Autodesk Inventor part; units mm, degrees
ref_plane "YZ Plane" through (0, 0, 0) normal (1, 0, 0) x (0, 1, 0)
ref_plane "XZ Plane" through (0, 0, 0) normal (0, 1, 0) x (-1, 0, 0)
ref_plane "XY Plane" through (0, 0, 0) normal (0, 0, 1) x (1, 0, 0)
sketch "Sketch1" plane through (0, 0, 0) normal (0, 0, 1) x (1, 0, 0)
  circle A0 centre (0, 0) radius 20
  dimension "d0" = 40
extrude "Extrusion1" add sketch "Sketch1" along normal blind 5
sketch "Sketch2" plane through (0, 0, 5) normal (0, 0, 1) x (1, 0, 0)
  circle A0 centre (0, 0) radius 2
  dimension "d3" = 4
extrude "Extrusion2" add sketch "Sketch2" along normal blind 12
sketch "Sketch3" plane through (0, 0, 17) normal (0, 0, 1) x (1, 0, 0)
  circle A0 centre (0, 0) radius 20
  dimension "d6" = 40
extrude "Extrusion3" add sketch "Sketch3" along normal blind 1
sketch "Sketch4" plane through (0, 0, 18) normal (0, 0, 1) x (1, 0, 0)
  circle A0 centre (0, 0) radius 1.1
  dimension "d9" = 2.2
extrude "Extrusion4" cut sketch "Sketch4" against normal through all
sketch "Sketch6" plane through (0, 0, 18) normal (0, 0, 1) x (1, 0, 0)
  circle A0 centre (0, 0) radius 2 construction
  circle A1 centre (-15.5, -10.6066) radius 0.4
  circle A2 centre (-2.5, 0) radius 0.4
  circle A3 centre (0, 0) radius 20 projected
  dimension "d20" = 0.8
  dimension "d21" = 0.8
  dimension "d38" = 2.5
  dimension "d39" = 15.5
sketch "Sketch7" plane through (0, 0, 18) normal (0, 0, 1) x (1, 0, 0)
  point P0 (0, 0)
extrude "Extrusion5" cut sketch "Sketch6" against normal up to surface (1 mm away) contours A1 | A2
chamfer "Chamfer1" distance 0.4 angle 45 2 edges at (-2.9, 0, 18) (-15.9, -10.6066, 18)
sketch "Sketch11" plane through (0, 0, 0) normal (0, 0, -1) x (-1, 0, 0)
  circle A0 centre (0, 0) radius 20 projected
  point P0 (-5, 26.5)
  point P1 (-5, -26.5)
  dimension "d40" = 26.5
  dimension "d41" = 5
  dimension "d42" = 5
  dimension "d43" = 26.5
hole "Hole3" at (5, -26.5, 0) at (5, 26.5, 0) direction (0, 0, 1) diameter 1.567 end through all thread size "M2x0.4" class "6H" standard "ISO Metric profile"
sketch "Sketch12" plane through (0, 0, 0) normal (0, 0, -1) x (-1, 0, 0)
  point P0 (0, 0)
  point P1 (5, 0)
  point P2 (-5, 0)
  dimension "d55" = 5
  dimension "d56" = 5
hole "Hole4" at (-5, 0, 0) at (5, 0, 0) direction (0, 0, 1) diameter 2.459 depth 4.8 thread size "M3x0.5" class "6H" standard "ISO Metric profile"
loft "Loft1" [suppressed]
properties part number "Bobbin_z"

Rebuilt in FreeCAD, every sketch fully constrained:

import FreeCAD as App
import Part
import Sketcher
Q = App.Units.Quantity


def edges_at(feature, points):
    """Names of the edges that pass closest to the given points."""
    edges = feature.Shape.Edges
    near = lambda p: min(range(len(edges)), key=lambda i: edges[i].distToShape(Part.Vertex(*p))[0])
    return sorted({f"Edge{near(p) + 1}" for p in points})

doc = App.newDocument("Part")
body = doc.addObject("PartDesign::Body", "Body")

sketch1 = body.newObject("Sketcher::SketchObject", "Sketch")
sketch1.AttachmentSupport = (doc.getObject("XY_Plane"), [""])
sketch1.MapMode = "FlatFace"
sketch1.addGeometry(Part.Circle(App.Vector(0, 0, 0), App.Vector(0, 0, 1), 20), False)
sketch1.addConstraint([
    Sketcher.Constraint("Coincident", 0, 3, -1, 1),
    Sketcher.Constraint("Diameter", 0, Q("40 mm")),
])
pad1 = body.newObject("PartDesign::Pad", "Pad")
pad1.Profile = sketch1
pad1.Length = 5

sketch2 = body.newObject("Sketcher::SketchObject", "Sketch001")
sketch2.AttachmentSupport = (doc.getObject("XY_Plane"), [""])
sketch2.MapMode = "FlatFace"
sketch2.AttachmentOffset = App.Placement(App.Vector(0, 0, 5), App.Rotation())
sketch2.addGeometry(Part.Circle(App.Vector(0, 0, 0), App.Vector(0, 0, 1), 2), False)
sketch2.addConstraint([
    Sketcher.Constraint("Coincident", 0, 3, -1, 1),
    Sketcher.Constraint("Diameter", 0, Q("4 mm")),
])
pad2 = body.newObject("PartDesign::Pad", "Pad001")
pad2.Profile = sketch2
pad2.Length = 12

sketch3 = body.newObject("Sketcher::SketchObject", "Sketch002")
sketch3.AttachmentSupport = (doc.getObject("XY_Plane"), [""])
sketch3.MapMode = "FlatFace"
sketch3.AttachmentOffset = App.Placement(App.Vector(0, 0, 17), App.Rotation())
sketch3.addGeometry(Part.Circle(App.Vector(0, 0, 0), App.Vector(0, 0, 1), 20), False)
sketch3.addConstraint([
    Sketcher.Constraint("Coincident", 0, 3, -1, 1),
    Sketcher.Constraint("Diameter", 0, Q("40 mm")),
])
pad3 = body.newObject("PartDesign::Pad", "Pad002")
pad3.Profile = sketch3
pad3.Length = 1

sketch4 = body.newObject("Sketcher::SketchObject", "Sketch003")
sketch4.AttachmentSupport = (doc.getObject("XY_Plane"), [""])
sketch4.MapMode = "FlatFace"
sketch4.AttachmentOffset = App.Placement(App.Vector(0, 0, 18), App.Rotation())
sketch4.addGeometry(Part.Circle(App.Vector(0, 0, 0), App.Vector(0, 0, 1), 1.1), False)
sketch4.addConstraint([
    Sketcher.Constraint("Coincident", 0, 3, -1, 1),
    Sketcher.Constraint("Diameter", 0, Q("2.2 mm")),
])
pocket1 = body.newObject("PartDesign::Pocket", "Pocket")
pocket1.Profile = sketch4
pocket1.Type = "ThroughAll"

sketch5 = body.newObject("Sketcher::SketchObject", "Sketch004")
sketch5.AttachmentSupport = (doc.getObject("XY_Plane"), [""])
sketch5.MapMode = "FlatFace"
sketch5.AttachmentOffset = App.Placement(App.Vector(0, 0, 18), App.Rotation())
sketch5.addGeometry([
    Part.Circle(App.Vector(-15.5, -10.61, 0), App.Vector(0, 0, 1), 0.4),
    Part.Circle(App.Vector(-2.5, 0, 0), App.Vector(0, 0, 1), 0.4),
], False)
sketch5.addConstraint([
    Sketcher.Constraint("Equal", 0, 1),
    Sketcher.Constraint("PointOnObject", 1, 3, -1),
    Sketcher.Constraint("Diameter", 0, Q("0.8 mm")),
    Sketcher.Constraint("DistanceX", 0, 3, -1, 1, Q("15.5 mm")),
    Sketcher.Constraint("DistanceX", 1, 3, -1, 1, Q("2.5 mm")),
    Sketcher.Constraint("DistanceY", 0, 3, -1, 1, Q("10.6066 mm")),
])
pocket2 = body.newObject("PartDesign::Pocket", "Pocket001")
pocket2.Profile = sketch5
pocket2.Length = 1
doc.recompute()

chamfer = body.newObject("PartDesign::Chamfer", "Chamfer")
chamfer.Base = (pocket2, edges_at(pocket2, [(-2.9, 0, 18), (-15.9, -10.607, 18)]))
chamfer.Size = 0.4

sketch6 = body.newObject("Sketcher::SketchObject", "Sketch005")
sketch6.AttachmentSupport = (doc.getObject("XY_Plane"), [""])
sketch6.MapMode = "FlatFace"
sketch6.addGeometry([
    Part.Circle(App.Vector(5, -26.5, 0), App.Vector(0, 0, 1), 0.8),
    Part.Circle(App.Vector(5, 26.5, 0), App.Vector(0, 0, 1), 0.8),
], False)
sketch6.addConstraint([
    Sketcher.Constraint("Equal", 0, 1),
    Sketcher.Constraint("Symmetric", 0, 3, 1, 3, -1),
    Sketcher.Constraint("Diameter", 0, Q("1.567 mm")),
    Sketcher.Constraint("DistanceX", -1, 1, 0, 3, Q("5 mm")),
    Sketcher.Constraint("DistanceY", 0, 3, 1, 3, Q("53 mm")),
])
doc.recompute()
hole = body.newObject("PartDesign::Hole", "Hole")
hole.Profile = sketch6
hole.ThreadType = "None"
hole.Diameter = 1.567
hole.DepthType = "ThroughAll"
hole.Reversed = True

sketch7 = body.newObject("Sketcher::SketchObject", "Sketch006")
sketch7.AttachmentSupport = (doc.getObject("XY_Plane"), [""])
sketch7.MapMode = "FlatFace"
sketch7.addGeometry([
    Part.Circle(App.Vector(-5, 0, 0), App.Vector(0, 0, 1), 1.2),
    Part.Circle(App.Vector(5, 0, 0), App.Vector(0, 0, 1), 1.2),
], False)
sketch7.addConstraint([
    Sketcher.Constraint("Equal", 0, 1),
    Sketcher.Constraint("Symmetric", 0, 3, 1, 3, -1, 1),
    Sketcher.Constraint("PointOnObject", 0, 3, -1),
    Sketcher.Constraint("Diameter", 0, Q("2.459 mm")),
    Sketcher.Constraint("DistanceX", 0, 3, -1, 1, Q("5 mm")),
])
doc.recompute()
hole2 = body.newObject("PartDesign::Hole", "Hole001")
hole2.Profile = sketch7
hole2.ThreadType = "None"
hole2.Diameter = 2.459
hole2.DepthType = "Dimension"
hole2.Depth = 4.8
hole2.DrillPoint = "Flat"
hole2.Reversed = True

doc.recompute()
